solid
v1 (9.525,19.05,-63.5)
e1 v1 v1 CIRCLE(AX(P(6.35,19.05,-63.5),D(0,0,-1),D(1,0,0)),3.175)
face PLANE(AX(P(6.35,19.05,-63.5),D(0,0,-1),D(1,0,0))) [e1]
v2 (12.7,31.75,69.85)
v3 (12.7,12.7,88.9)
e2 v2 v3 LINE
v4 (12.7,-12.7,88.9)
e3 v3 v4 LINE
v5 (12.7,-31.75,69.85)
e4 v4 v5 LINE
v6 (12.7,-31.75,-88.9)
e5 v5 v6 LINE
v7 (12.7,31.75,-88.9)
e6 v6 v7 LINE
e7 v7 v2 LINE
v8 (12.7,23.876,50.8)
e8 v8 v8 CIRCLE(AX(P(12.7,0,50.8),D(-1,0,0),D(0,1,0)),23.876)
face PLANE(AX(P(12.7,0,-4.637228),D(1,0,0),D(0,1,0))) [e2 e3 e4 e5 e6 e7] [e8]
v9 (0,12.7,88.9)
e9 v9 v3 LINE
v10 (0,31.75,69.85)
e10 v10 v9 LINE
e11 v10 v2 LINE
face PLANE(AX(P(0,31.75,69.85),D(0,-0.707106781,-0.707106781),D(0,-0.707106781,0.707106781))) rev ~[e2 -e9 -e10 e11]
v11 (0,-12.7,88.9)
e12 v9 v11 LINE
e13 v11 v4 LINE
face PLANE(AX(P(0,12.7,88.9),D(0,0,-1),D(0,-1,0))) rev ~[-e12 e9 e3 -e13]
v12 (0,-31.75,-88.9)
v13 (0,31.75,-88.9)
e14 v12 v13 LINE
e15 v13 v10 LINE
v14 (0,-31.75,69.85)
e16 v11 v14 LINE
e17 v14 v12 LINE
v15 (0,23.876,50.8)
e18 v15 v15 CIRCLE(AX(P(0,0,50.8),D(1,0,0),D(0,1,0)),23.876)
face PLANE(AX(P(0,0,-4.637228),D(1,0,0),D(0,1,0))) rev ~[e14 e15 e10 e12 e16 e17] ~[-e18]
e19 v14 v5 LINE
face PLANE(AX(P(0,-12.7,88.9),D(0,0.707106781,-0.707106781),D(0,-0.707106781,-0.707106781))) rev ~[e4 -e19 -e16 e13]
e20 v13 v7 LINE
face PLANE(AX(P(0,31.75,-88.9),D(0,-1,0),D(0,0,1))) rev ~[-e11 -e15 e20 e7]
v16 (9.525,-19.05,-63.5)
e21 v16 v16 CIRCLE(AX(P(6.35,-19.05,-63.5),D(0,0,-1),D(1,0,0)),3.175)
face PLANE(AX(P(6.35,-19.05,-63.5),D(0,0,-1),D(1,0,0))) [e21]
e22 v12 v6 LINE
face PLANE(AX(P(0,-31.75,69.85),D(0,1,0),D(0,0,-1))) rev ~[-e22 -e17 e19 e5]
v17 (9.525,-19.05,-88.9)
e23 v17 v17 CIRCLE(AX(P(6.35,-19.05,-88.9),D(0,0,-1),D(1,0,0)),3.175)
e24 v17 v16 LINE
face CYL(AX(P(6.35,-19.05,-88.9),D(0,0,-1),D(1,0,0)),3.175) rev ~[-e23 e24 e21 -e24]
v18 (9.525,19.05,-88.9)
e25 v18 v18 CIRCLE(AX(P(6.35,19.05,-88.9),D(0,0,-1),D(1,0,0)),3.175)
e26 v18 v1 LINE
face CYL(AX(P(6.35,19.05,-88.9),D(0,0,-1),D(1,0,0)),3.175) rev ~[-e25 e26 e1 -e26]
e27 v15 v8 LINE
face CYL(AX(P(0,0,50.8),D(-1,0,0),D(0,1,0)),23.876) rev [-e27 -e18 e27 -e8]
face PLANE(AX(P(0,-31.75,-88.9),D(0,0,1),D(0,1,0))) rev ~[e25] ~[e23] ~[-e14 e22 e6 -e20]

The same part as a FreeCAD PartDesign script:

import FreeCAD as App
import Part
import Sketcher
Q = App.Units.Quantity


def add_polygon(sketch, points):
    """Adds a closed chain of lines whose ends are joined by coincident constraints."""
    first, n = sketch.GeometryCount, len(points)
    for a, b in zip(points, points[1:] + points[:1]):
        sketch.addGeometry(Part.LineSegment(App.Vector(*a, 0), App.Vector(*b, 0)), False)
    for i in range(n):
        sketch.addConstraint(Sketcher.Constraint("Coincident", first + i, 2, first + (i + 1) % n, 1))

doc = App.newDocument("Part")
body = doc.addObject("PartDesign::Body", "Body")

# Sketch on YZ plane
sketch1 = body.newObject("Sketcher::SketchObject", "Sketch")
sketch1.AttachmentSupport = (doc.getObject("YZ_Plane"), [""])
sketch1.MapMode = "FlatFace"
add_polygon(sketch1, [(13, 89), (-13, 89), (-32, 70), (-32, -89), (32, -89), (32, 70)])  # lines 0-5
sketch1.addConstraint([
    Sketcher.Constraint("Horizontal", 0),
    Sketcher.Constraint("Vertical", 2),
    Sketcher.Constraint("Horizontal", 3),
    Sketcher.Constraint("Vertical", 4),
    Sketcher.Constraint("Symmetric", 1, 2, 4, 2, -2),
    Sketcher.Constraint("Perpendicular", 1, 5),
    Sketcher.Constraint("Equal", 1, 5),
    Sketcher.Constraint("DistanceX", 0, 2, 0, 1, Q("1 in")),
    Sketcher.Constraint("DistanceX", 3, 1, 3, 2, Q("2.5 in")),
    Sketcher.Constraint("DistanceY", 2, 2, 0, 2, Q("7 in")),
    Sketcher.Constraint("DistanceY", -1, 1, 0, 2, Q("3.5 in")),
])
pad1 = body.newObject("PartDesign::Pad", "Pad")
pad1.Profile = sketch1
pad1.Length = Q("0.5 in")

# Sketch on YZ plane
sketch2 = body.newObject("Sketcher::SketchObject", "Sketch001")
sketch2.AttachmentSupport = (doc.getObject("YZ_Plane"), [""])
sketch2.MapMode = "FlatFace"
sketch2.addGeometry(Part.Circle(App.Vector(0, 51, 0), App.Vector(0, 0, 1), 24), False)
sketch2.addConstraint([
    Sketcher.Constraint("PointOnObject", 0, 3, -2),
    Sketcher.Constraint("Diameter", 0, Q("1.88 in")),
    Sketcher.Constraint("DistanceY", -1, 1, 0, 3, Q("2 in")),
])
pocket1 = body.newObject("PartDesign::Pocket", "Pocket")
pocket1.Profile = sketch2
pocket1.Type = "ThroughAll"
pocket1.Reversed = True

# Sketch on XY plane
sketch3 = body.newObject("Sketcher::SketchObject", "Sketch002")
sketch3.AttachmentSupport = (doc.getObject("XY_Plane"), [""])
sketch3.MapMode = "FlatFace"
sketch3.AttachmentOffset = App.Placement(App.Vector(0, 0, -3.5 * 25.4), App.Rotation())
sketch3.addGeometry([
    Part.Circle(App.Vector(6.3, -19.1, 0), App.Vector(0, 0, 1), 3.2),
    Part.Circle(App.Vector(6.3, 19.1, 0), App.Vector(0, 0, 1), 3.2),
], False)
sketch3.addConstraint([
    Sketcher.Constraint("Equal", 0, 1),
    Sketcher.Constraint("Symmetric", 0, 3, 1, 3, -1),
    Sketcher.Constraint("Diameter", 0, Q("0.25 in")),
    Sketcher.Constraint("DistanceY", 0, 3, 1, 3, Q("1.5 in")),
    Sketcher.Constraint("DistanceX", -1, 1, 0, 3, Q("0.25 in")),
])
pocket2 = body.newObject("PartDesign::Pocket", "Pocket001")
pocket2.Profile = sketch3
pocket2.Length = Q("1 in")
pocket2.Reversed = True

doc.recompute()
